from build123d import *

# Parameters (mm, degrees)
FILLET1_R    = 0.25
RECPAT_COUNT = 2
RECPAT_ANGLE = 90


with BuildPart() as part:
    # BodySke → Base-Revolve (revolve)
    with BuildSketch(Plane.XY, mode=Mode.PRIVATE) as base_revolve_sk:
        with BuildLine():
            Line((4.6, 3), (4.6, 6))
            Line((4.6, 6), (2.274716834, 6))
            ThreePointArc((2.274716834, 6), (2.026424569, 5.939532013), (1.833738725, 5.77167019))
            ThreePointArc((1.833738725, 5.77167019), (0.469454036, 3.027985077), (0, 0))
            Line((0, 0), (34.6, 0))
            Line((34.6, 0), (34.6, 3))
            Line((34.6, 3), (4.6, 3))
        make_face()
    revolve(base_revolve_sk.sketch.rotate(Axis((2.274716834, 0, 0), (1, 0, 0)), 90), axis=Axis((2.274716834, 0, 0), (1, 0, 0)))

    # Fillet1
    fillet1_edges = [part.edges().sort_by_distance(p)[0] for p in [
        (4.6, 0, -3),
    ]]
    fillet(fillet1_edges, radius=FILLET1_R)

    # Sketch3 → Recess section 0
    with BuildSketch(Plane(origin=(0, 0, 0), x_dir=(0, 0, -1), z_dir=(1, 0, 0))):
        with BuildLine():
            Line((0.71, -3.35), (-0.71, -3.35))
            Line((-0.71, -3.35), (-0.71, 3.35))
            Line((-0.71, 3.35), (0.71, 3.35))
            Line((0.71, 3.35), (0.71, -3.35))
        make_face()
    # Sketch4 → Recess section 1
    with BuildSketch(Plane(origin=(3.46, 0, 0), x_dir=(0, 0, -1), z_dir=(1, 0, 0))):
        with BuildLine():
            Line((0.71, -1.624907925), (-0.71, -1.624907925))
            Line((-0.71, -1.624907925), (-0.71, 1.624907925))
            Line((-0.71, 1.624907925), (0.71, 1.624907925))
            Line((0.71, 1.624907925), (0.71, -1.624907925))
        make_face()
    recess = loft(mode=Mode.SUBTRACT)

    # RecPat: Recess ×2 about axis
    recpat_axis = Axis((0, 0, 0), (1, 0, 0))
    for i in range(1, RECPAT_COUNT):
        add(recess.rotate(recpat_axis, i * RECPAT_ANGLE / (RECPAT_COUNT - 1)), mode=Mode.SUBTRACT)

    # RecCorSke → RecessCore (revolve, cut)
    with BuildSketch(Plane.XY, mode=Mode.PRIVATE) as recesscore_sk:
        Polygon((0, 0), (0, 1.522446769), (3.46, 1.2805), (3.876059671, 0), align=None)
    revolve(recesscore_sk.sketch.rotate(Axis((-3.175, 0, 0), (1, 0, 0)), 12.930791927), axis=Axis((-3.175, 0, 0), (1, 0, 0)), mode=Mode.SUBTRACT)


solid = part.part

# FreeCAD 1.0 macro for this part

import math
import FreeCAD as App
import Part
import Sketcher
Q = App.Units.Quantity


def edges_at(feature, points):
    """Names of the edges that pass closest to the given points."""
    edges = feature.Shape.Edges
    near = lambda p: min(range(len(edges)), key=lambda i: edges[i].distToShape(Part.Vertex(*p))[0])
    return sorted({f"Edge{near(p) + 1}" for p in points})

doc = App.newDocument("Part")
body = doc.addObject("PartDesign::Body", "Body")

# Sketch on XY plane
sketch1 = doc.addObject("Sketcher::SketchObject", "Sketch")
body.addObject(sketch1)
sketch1.AttachmentSupport = (doc.XY_Plane, [""])
sketch1.MapMode = "FlatFace"
sketch1.addGeometry([
    Part.LineSegment(App.Vector(4.6, 3, 0), App.Vector(4.6, 6, 0)),  # 0
    Part.LineSegment(App.Vector(4.6, 6, 0), App.Vector(2.274717, 6, 0)),  # 1
    Part.ArcOfCircle(Part.Circle(App.Vector(2.274717, 5.46, 0), App.Vector(0, 0, 1), 0.54), math.radians(90), math.radians(144.748469)),  # 2
    Part.ArcOfCircle(Part.Circle(App.Vector(10, 0, 0), App.Vector(0, 0, 1), 10), math.radians(144.748468), math.radians(180)),  # 3
    Part.LineSegment(App.Vector(0, 0, 0), App.Vector(34.6, 0, 0)),  # 4
    Part.LineSegment(App.Vector(34.6, 0, 0), App.Vector(34.6, 3, 0)),  # 5
    Part.LineSegment(App.Vector(34.6, 3, 0), App.Vector(4.6, 3, 0)),  # 6
], False)
sketch1.addConstraint([
    Sketcher.Constraint("Coincident", 0, 2, 1, 1),
    Sketcher.Constraint("Tangent", 1, 2, 2, 1),
    Sketcher.Constraint("Tangent", 2, 2, 3, 1),
    Sketcher.Constraint("Coincident", 3, 2, 4, 1),
    Sketcher.Constraint("Coincident", 4, 2, 5, 1),
    Sketcher.Constraint("Coincident", 5, 2, 6, 1),
    Sketcher.Constraint("Coincident", 6, 2, 0, 1),
    Sketcher.Constraint("Vertical", 0),
    Sketcher.Constraint("Horizontal", 1),
    Sketcher.Constraint("Horizontal", 4),
    Sketcher.Constraint("Vertical", 5),
    Sketcher.Constraint("Horizontal", 6),
    Sketcher.Constraint("Coincident", 3, 2, -1, 1),
    Sketcher.Constraint("PointOnObject", 3, 3, -1),
    Sketcher.Constraint("Equal", 0, 5),
    Sketcher.Constraint("Radius", 3, Q("10 mm")),
    Sketcher.Constraint("DistanceX", 6, 2, 6, 1, Q("30 mm")),
    Sketcher.Constraint("DistanceY", 0, 1, 0, 2, Q("3 mm")),
    Sketcher.Constraint("Radius", 2, Q("0.54 mm")),
    Sketcher.Constraint("DistanceX", 4, 1, 4, 2, Q("34.6 mm")),
])
revolution = doc.addObject("PartDesign::Revolution", "Revolution")
body.addObject(revolution)
revolution.Profile = sketch1
revolution.ReferenceAxis = (sketch1, ["H_Axis"])
revolution.Angle = 360
doc.recompute()

fillet = doc.addObject("PartDesign::Fillet", "Fillet")
body.addObject(fillet)
fillet.Base = (revolution, edges_at(revolution, [(4.6, 0, -3)]))
fillet.Radius = 0.25

# Sketch on YZ plane
sketch2 = doc.addObject("Sketcher::SketchObject", "Sketch001")
body.addObject(sketch2)
sketch2.AttachmentSupport = (doc.YZ_Plane, [""])
sketch2.MapMode = "FlatFace"
sketch2.addGeometry([
    Part.LineSegment(App.Vector(-3.35, 0.71, 0), App.Vector(-3.35, -0.71, 0)),
    Part.LineSegment(App.Vector(-3.35, -0.71, 0), App.Vector(3.35, -0.71, 0)),
    Part.LineSegment(App.Vector(3.35, -0.71, 0), App.Vector(3.35, 0.71, 0)),
    Part.LineSegment(App.Vector(3.35, 0.71, 0), App.Vector(-3.35, 0.71, 0)),
], False)
sketch2.addConstraint([
    Sketcher.Constraint("Coincident", 0, 2, 1, 1),
    Sketcher.Constraint("Coincident", 1, 2, 2, 1),
    Sketcher.Constraint("Coincident", 2, 2, 3, 1),
    Sketcher.Constraint("Coincident", 3, 2, 0, 1),
    Sketcher.Constraint("Vertical", 0),
    Sketcher.Constraint("Horizontal", 1),
    Sketcher.Constraint("Vertical", 2),
    Sketcher.Constraint("Horizontal", 3),
    Sketcher.Constraint("Symmetric", 0, 2, 2, 2, -1, 1),
    Sketcher.Constraint("DistanceX", 1, 1, 1, 2, Q("6.7 mm")),
    Sketcher.Constraint("DistanceY", 0, 2, 0, 1, Q("1.42 mm")),
])

# Sketch on YZ plane
sketch3 = doc.addObject("Sketcher::SketchObject", "Sketch002")
body.addObject(sketch3)
sketch3.AttachmentSupport = (doc.YZ_Plane, [""])
sketch3.MapMode = "FlatFace"
sketch3.AttachmentOffset = App.Placement(App.Vector(0, 0, 3.46), App.Rotation())
sketch3.addGeometry([
    Part.LineSegment(App.Vector(-1.624908, 0.71, 0), App.Vector(-1.624908, -0.71, 0)),
    Part.LineSegment(App.Vector(-1.624908, -0.71, 0), App.Vector(1.624908, -0.71, 0)),
    Part.LineSegment(App.Vector(1.624908, -0.71, 0), App.Vector(1.624908, 0.71, 0)),
    Part.LineSegment(App.Vector(1.624908, 0.71, 0), App.Vector(-1.624908, 0.71, 0)),
], False)
sketch3.addConstraint([
    Sketcher.Constraint("Coincident", 0, 2, 1, 1),
    Sketcher.Constraint("Coincident", 1, 2, 2, 1),
    Sketcher.Constraint("Coincident", 2, 2, 3, 1),
    Sketcher.Constraint("Coincident", 3, 2, 0, 1),
    Sketcher.Constraint("Vertical", 0),
    Sketcher.Constraint("Horizontal", 1),
    Sketcher.Constraint("Vertical", 2),
    Sketcher.Constraint("Horizontal", 3),
    Sketcher.Constraint("Symmetric", 0, 2, 2, 2, -1, 1),
    Sketcher.Constraint("DistanceY", 0, 2, 0, 1, Q("1.42 mm")),
    Sketcher.Constraint("DistanceX", 1, 1, 1, 2, Q("3.249816 mm")),
])

subtractiveloft = doc.addObject("PartDesign::SubtractiveLoft", "SubtractiveLoft")
body.addObject(subtractiveloft)
subtractiveloft.Profile = sketch2
subtractiveloft.Sections = [sketch3]
doc.recompute()

polarpattern = doc.addObject("PartDesign::PolarPattern", "PolarPattern")
body.addObject(polarpattern)
polarpattern.Originals = [subtractiveloft]
polarpattern.Axis = (doc.X_Axis, [""])
polarpattern.Angle = 90
polarpattern.Occurrences = 2
body.Tip = polarpattern

# Sketch on XY plane
sketch4 = doc.addObject("Sketcher::SketchObject", "Sketch003")
body.addObject(sketch4)
sketch4.AttachmentSupport = (doc.XY_Plane, [""])
sketch4.MapMode = "FlatFace"
sketch4.addGeometry([
    Part.LineSegment(App.Vector(0, 1.522447, 0), App.Vector(0, 0, 0)),
    Part.LineSegment(App.Vector(0, 0, 0), App.Vector(3.87606, 0, 0)),
    Part.LineSegment(App.Vector(3.87606, 0, 0), App.Vector(3.46, 1.2805, 0)),
    Part.LineSegment(App.Vector(3.46, 1.2805, 0), App.Vector(0, 1.522447, 0)),
], False)
sketch4.addConstraint([
    Sketcher.Constraint("Coincident", 0, 2, 1, 1),
    Sketcher.Constraint("Coincident", 1, 2, 2, 1),
    Sketcher.Constraint("Coincident", 2, 2, 3, 1),
    Sketcher.Constraint("Coincident", 3, 2, 0, 1),
    Sketcher.Constraint("Vertical", 0),
    Sketcher.Constraint("Horizontal", 1),
    Sketcher.Constraint("Coincident", 0, 2, -1, 1),
    Sketcher.Constraint("Angle", 2, Q("108 deg")),
    Sketcher.Constraint("Angle", 3, Q("176 deg")),
    Sketcher.Constraint("DistanceX", -1, 1, 2, 2, Q("3.46 mm")),
    Sketcher.Constraint("DistanceX", 1, 1, 1, 2, Q("3.87606 mm")),
])
groove = doc.addObject("PartDesign::Groove", "Groove")
body.addObject(groove)
groove.Profile = sketch4
groove.ReferenceAxis = (sketch4, ["H_Axis"])
groove.Angle = 360

doc.recompute()
